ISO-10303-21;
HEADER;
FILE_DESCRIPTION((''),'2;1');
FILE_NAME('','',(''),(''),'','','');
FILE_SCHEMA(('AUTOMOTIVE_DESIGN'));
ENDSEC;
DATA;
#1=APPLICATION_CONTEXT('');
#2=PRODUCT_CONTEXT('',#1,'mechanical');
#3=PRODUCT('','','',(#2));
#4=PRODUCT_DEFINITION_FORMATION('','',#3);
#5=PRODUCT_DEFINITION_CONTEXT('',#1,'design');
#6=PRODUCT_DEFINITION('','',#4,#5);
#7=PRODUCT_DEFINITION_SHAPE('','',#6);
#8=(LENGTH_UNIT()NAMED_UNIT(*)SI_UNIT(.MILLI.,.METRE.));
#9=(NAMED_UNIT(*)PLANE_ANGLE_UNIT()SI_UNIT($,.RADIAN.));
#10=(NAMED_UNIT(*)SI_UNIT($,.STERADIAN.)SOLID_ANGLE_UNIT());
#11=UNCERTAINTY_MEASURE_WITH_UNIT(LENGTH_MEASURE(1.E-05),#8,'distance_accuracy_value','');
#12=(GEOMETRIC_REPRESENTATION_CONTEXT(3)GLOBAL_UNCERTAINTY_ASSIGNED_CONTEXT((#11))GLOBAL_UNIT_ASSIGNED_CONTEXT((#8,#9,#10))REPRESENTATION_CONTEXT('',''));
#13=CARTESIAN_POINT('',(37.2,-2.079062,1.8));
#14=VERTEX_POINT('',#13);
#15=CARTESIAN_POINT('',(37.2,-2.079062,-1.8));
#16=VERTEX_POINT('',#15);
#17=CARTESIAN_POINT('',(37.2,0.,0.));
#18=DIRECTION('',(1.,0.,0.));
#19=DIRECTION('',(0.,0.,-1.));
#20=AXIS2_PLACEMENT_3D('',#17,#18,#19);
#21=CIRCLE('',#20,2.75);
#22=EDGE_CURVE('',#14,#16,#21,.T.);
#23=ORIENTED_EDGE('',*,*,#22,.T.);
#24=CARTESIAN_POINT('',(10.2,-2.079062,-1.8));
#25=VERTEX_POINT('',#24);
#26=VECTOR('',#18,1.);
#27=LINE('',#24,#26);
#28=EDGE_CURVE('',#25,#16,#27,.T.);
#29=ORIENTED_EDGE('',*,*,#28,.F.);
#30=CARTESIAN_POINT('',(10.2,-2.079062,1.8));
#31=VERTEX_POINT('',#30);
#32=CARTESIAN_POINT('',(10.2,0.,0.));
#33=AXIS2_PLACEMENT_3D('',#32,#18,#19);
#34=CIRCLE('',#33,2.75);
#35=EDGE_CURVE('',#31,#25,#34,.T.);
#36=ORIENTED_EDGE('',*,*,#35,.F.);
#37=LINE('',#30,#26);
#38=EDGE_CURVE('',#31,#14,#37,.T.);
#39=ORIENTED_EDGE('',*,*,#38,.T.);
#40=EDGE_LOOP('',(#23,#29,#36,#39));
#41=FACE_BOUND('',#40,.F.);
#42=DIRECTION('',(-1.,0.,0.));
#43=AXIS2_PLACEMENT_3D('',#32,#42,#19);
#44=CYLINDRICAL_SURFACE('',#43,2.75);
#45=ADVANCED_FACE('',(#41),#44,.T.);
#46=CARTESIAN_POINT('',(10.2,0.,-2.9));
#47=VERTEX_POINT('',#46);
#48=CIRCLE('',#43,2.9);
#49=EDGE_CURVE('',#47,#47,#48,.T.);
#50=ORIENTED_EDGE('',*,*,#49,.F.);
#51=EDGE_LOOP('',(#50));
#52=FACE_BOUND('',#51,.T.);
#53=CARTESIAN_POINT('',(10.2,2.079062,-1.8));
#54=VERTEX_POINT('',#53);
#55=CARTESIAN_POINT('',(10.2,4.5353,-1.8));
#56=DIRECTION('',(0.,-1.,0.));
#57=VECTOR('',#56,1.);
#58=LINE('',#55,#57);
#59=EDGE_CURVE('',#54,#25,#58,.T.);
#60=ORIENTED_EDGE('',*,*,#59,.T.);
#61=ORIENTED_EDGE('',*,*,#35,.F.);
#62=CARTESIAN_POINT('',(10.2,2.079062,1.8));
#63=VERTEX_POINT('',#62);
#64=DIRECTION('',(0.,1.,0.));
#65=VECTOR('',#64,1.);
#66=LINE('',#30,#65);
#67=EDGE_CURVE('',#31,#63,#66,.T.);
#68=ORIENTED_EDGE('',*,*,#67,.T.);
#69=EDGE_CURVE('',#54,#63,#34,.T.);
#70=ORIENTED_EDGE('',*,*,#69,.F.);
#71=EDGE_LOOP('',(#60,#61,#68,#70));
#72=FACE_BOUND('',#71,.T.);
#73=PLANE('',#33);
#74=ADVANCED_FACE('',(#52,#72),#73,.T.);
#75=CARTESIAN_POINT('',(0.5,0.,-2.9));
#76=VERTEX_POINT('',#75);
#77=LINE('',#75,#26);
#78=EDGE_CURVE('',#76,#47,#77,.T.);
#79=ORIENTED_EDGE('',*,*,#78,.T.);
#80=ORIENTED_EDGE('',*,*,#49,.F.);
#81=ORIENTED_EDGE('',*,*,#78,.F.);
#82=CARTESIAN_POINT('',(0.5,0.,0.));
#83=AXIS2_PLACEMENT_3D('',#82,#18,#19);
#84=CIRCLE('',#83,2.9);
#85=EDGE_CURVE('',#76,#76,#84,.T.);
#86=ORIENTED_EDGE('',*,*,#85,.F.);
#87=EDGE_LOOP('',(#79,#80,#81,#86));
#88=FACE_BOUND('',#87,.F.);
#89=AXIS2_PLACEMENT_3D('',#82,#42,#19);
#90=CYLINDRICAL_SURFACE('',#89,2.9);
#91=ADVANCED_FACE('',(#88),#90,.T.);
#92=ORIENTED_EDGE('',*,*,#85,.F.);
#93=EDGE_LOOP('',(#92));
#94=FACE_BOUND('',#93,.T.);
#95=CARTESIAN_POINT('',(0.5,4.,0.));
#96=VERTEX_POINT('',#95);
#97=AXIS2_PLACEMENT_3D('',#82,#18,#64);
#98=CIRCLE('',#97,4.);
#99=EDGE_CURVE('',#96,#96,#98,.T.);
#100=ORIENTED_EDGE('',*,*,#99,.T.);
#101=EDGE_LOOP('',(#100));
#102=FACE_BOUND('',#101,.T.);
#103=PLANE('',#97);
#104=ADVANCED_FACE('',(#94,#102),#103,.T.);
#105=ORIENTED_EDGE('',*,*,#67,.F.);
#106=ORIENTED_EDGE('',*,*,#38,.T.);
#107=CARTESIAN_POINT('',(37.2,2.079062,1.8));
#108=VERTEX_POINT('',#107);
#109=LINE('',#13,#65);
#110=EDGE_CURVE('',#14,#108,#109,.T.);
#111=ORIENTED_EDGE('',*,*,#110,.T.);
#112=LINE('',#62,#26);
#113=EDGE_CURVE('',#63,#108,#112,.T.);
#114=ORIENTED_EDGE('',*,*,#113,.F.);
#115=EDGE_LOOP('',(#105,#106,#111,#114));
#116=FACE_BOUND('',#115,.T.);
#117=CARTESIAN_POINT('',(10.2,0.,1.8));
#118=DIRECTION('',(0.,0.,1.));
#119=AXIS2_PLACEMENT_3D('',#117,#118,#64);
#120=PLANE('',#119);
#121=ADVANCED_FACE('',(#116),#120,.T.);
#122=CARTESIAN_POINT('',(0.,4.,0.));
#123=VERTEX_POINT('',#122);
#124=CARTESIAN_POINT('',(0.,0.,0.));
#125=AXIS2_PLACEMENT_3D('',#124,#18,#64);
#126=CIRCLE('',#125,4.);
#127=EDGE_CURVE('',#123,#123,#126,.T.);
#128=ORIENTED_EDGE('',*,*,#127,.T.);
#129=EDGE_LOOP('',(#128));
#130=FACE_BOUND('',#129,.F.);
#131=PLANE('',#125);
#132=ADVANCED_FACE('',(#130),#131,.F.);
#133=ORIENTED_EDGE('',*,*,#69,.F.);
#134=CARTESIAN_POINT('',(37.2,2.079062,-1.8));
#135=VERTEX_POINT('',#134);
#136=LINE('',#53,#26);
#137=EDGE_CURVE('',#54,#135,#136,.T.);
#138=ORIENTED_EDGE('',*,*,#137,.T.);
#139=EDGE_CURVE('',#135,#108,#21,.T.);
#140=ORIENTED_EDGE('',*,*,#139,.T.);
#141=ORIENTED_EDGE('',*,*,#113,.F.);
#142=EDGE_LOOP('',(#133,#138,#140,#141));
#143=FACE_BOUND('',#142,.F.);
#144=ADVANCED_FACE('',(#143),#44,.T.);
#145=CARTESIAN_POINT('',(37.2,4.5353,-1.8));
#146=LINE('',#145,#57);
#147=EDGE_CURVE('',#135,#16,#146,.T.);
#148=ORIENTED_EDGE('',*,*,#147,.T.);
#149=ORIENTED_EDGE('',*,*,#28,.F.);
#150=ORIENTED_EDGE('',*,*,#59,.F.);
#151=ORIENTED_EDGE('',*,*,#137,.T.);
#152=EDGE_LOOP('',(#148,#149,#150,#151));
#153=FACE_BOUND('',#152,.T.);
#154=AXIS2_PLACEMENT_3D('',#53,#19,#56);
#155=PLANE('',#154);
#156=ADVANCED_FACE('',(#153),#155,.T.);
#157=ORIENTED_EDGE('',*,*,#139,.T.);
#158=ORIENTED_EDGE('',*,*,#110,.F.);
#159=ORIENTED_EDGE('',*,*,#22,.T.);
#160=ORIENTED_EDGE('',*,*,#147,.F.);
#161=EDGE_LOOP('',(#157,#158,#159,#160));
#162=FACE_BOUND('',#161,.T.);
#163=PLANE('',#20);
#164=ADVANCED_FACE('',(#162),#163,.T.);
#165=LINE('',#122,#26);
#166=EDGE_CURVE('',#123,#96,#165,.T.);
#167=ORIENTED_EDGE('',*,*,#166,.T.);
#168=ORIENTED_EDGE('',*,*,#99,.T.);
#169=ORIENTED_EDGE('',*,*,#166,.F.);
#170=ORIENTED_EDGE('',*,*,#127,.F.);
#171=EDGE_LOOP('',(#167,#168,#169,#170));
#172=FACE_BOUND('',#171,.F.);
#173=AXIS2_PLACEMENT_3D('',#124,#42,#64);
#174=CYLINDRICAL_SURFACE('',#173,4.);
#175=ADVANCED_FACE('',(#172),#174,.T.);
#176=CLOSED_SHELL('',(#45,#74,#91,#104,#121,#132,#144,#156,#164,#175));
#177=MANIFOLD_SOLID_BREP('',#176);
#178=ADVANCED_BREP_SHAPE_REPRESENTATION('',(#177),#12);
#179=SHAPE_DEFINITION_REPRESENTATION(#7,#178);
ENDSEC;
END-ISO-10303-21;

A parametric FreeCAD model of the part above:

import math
import FreeCAD as App
import Part
import Sketcher
from FreeCAD import Vector

doc = App.newDocument("Part")
body = doc.addObject("PartDesign::Body", "Body")

# Sketch on YZ plane
sketch1 = body.newObject("Sketcher::SketchObject", "Sketch")
sketch1.AttachmentSupport = (doc.getObject("YZ_Plane"), [""])
sketch1.MapMode = "FlatFace"
sketch1.addGeometry(Part.Circle(Vector(0, 0, 0), Vector(0, 0, 1), 4), False)
sketch1.addConstraint(Sketcher.Constraint("Coincident", 0, 3, -1, 1))
sketch1.addConstraint(Sketcher.Constraint("Diameter", 0, 8.0))
pad1 = body.newObject("PartDesign::Pad", "Pad")
pad1.Profile = sketch1
pad1.Length = 0.5

# Sketch on YZ plane
sketch2 = body.newObject("Sketcher::SketchObject", "Sketch001")
sketch2.AttachmentSupport = (doc.getObject("YZ_Plane"), [""])
sketch2.MapMode = "FlatFace"
sketch2.AttachmentOffset = App.Placement(Vector(0, 0, 0.5), App.Rotation())
sketch2.addGeometry(Part.Circle(Vector(0, 0, 0), Vector(0, 0, 1), 2.9), False)
sketch2.addConstraint(Sketcher.Constraint("Coincident", 0, 3, -1, 1))
sketch2.addConstraint(Sketcher.Constraint("Diameter", 0, 5.8))
pad2 = body.newObject("PartDesign::Pad", "Pad001")
pad2.Profile = sketch2
pad2.Length = 9.7

# Sketch on YZ plane
sketch3 = body.newObject("Sketcher::SketchObject", "Sketch002")
sketch3.AttachmentSupport = (doc.getObject("YZ_Plane"), [""])
sketch3.MapMode = "FlatFace"
sketch3.AttachmentOffset = App.Placement(Vector(0, 0, 10.2), App.Rotation())
sketch3.addGeometry(Part.LineSegment(Vector(-2.079062, -1.8, 0), Vector(2.079062, -1.8, 0)), False)
sketch3.addGeometry(Part.ArcOfCircle(Part.Circle(Vector(0, 0, 0), Vector(0, 0, 1), 2.75), math.radians(-40.885193), math.radians(40.885193)), False)
sketch3.addGeometry(Part.LineSegment(Vector(2.079062, 1.8, 0), Vector(-2.079062, 1.8, 0)), False)
sketch3.addGeometry(Part.ArcOfCircle(Part.Circle(Vector(0, 0, 0), Vector(0, 0, 1), 2.75), math.radians(139.114807), math.radians(220.885193)), False)
sketch3.addConstraint(Sketcher.Constraint("Coincident", 0, 2, 1, 1))
sketch3.addConstraint(Sketcher.Constraint("Coincident", 1, 2, 2, 1))
sketch3.addConstraint(Sketcher.Constraint("Coincident", 2, 2, 3, 1))
sketch3.addConstraint(Sketcher.Constraint("Coincident", 3, 2, 0, 1))
sketch3.addConstraint(Sketcher.Constraint("Horizontal", 0))
sketch3.addConstraint(Sketcher.Constraint("Horizontal", 2))
sketch3.addConstraint(Sketcher.Constraint("Coincident", 1, 3, -1, 1))
sketch3.addConstraint(Sketcher.Constraint("Coincident", 3, 3, -1, 1))
sketch3.addConstraint(Sketcher.Constraint("Equal", 1, 3))
sketch3.addConstraint(Sketcher.Constraint("Vertical", 0, 2, 1, 2))
sketch3.addConstraint(Sketcher.Constraint("Radius", 1, 2.75))
sketch3.addConstraint(Sketcher.Constraint("DistanceY", 0, 2, -1, 1, 1.8))
pad3 = body.newObject("PartDesign::Pad", "Pad002")
pad3.Profile = sketch3
pad3.Length = 27

doc.recompute()
